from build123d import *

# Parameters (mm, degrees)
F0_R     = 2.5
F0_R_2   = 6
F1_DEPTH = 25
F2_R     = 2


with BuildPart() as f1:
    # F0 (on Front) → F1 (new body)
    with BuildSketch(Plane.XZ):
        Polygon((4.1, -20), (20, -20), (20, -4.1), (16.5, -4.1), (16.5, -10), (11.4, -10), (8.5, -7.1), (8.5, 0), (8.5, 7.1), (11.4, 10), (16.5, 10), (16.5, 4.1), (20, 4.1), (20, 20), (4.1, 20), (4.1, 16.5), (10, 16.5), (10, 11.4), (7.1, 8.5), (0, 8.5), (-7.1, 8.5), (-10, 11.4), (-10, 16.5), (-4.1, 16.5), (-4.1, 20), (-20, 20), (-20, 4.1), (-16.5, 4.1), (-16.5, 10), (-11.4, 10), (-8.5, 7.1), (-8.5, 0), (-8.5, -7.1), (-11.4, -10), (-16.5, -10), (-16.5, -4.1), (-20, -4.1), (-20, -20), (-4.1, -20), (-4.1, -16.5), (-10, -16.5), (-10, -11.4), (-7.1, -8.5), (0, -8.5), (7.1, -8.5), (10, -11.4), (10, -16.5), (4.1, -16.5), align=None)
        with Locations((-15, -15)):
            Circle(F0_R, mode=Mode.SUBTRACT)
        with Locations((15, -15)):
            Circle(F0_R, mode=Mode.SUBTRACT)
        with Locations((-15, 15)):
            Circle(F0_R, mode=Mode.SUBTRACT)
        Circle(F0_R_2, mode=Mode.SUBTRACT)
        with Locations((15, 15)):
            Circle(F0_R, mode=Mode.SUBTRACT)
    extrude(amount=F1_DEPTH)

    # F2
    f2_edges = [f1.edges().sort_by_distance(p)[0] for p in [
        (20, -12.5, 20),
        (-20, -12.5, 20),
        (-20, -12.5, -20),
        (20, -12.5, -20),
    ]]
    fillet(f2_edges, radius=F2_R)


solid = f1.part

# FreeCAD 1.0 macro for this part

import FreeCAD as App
import Part
import Sketcher
from FreeCAD import Vector
Q = App.Units.Quantity


def edges_at(feature, points):
    """Names of the edges that pass closest to the given points."""
    edges = feature.Shape.Edges
    near = lambda p: min(range(len(edges)), key=lambda i: edges[i].distToShape(Part.Vertex(*p))[0])
    return sorted({f"Edge{near(p) + 1}" for p in points})

doc = App.newDocument("Part")
body = doc.addObject("PartDesign::Body", "Body")

# Sketch on XZ plane
sketch1 = doc.addObject("Sketcher::SketchObject", "Sketch")
body.addObject(sketch1)
sketch1.AttachmentSupport = (doc.XZ_Plane, [""])
sketch1.MapMode = "FlatFace"
sketch1.addGeometry(Part.LineSegment(Vector(4.1, -20, 0), Vector(20, -20, 0)), False)
sketch1.addGeometry(Part.LineSegment(Vector(20, -20, 0), Vector(20, -4.1, 0)), False)
sketch1.addGeometry(Part.LineSegment(Vector(20, -4.1, 0), Vector(16.5, -4.1, 0)), False)
sketch1.addGeometry(Part.LineSegment(Vector(16.5, -4.1, 0), Vector(16.5, -10, 0)), False)
sketch1.addGeometry(Part.LineSegment(Vector(16.5, -10, 0), Vector(11.4, -10, 0)), False)
sketch1.addGeometry(Part.LineSegment(Vector(11.4, -10, 0), Vector(8.5, -7.1, 0)), False)
sketch1.addGeometry(Part.LineSegment(Vector(8.5, -7.1, 0), Vector(8.5, 7.1, 0)), False)
sketch1.addGeometry(Part.LineSegment(Vector(8.5, 7.1, 0), Vector(11.4, 10, 0)), False)
sketch1.addGeometry(Part.LineSegment(Vector(11.4, 10, 0), Vector(16.5, 10, 0)), False)
sketch1.addGeometry(Part.LineSegment(Vector(16.5, 10, 0), Vector(16.5, 4.1, 0)), False)
sketch1.addGeometry(Part.LineSegment(Vector(16.5, 4.1, 0), Vector(20, 4.1, 0)), False)
sketch1.addGeometry(Part.LineSegment(Vector(20, 4.1, 0), Vector(20, 20, 0)), False)
sketch1.addGeometry(Part.LineSegment(Vector(20, 20, 0), Vector(4.1, 20, 0)), False)
sketch1.addGeometry(Part.LineSegment(Vector(4.1, 20, 0), Vector(4.1, 16.5, 0)), False)
sketch1.addGeometry(Part.LineSegment(Vector(4.1, 16.5, 0), Vector(10, 16.5, 0)), False)
sketch1.addGeometry(Part.LineSegment(Vector(10, 16.5, 0), Vector(10, 11.4, 0)), False)
sketch1.addGeometry(Part.LineSegment(Vector(10, 11.4, 0), Vector(7.1, 8.5, 0)), False)
sketch1.addGeometry(Part.LineSegment(Vector(7.1, 8.5, 0), Vector(-7.1, 8.5, 0)), False)
sketch1.addGeometry(Part.LineSegment(Vector(-7.1, 8.5, 0), Vector(-10, 11.4, 0)), False)
sketch1.addGeometry(Part.LineSegment(Vector(-10, 11.4, 0), Vector(-10, 16.5, 0)), False)
sketch1.addGeometry(Part.LineSegment(Vector(-10, 16.5, 0), Vector(-4.1, 16.5, 0)), False)
sketch1.addGeometry(Part.LineSegment(Vector(-4.1, 16.5, 0), Vector(-4.1, 20, 0)), False)
sketch1.addGeometry(Part.LineSegment(Vector(-4.1, 20, 0), Vector(-20, 20, 0)), False)
sketch1.addGeometry(Part.LineSegment(Vector(-20, 20, 0), Vector(-20, 4.1, 0)), False)
sketch1.addGeometry(Part.LineSegment(Vector(-20, 4.1, 0), Vector(-16.5, 4.1, 0)), False)
sketch1.addGeometry(Part.LineSegment(Vector(-16.5, 4.1, 0), Vector(-16.5, 10, 0)), False)
sketch1.addGeometry(Part.LineSegment(Vector(-16.5, 10, 0), Vector(-11.4, 10, 0)), False)
sketch1.addGeometry(Part.LineSegment(Vector(-11.4, 10, 0), Vector(-8.5, 7.1, 0)), False)
sketch1.addGeometry(Part.LineSegment(Vector(-8.5, 7.1, 0), Vector(-8.5, -7.1, 0)), False)
sketch1.addGeometry(Part.LineSegment(Vector(-8.5, -7.1, 0), Vector(-11.4, -10, 0)), False)
sketch1.addGeometry(Part.LineSegment(Vector(-11.4, -10, 0), Vector(-16.5, -10, 0)), False)
sketch1.addGeometry(Part.LineSegment(Vector(-16.5, -10, 0), Vector(-16.5, -4.1, 0)), False)
sketch1.addGeometry(Part.LineSegment(Vector(-16.5, -4.1, 0), Vector(-20, -4.1, 0)), False)
sketch1.addGeometry(Part.LineSegment(Vector(-20, -4.1, 0), Vector(-20, -20, 0)), False)
sketch1.addGeometry(Part.LineSegment(Vector(-20, -20, 0), Vector(-4.1, -20, 0)), False)
sketch1.addGeometry(Part.LineSegment(Vector(-4.1, -20, 0), Vector(-4.1, -16.5, 0)), False)
sketch1.addGeometry(Part.LineSegment(Vector(-4.1, -16.5, 0), Vector(-10, -16.5, 0)), False)
sketch1.addGeometry(Part.LineSegment(Vector(-10, -16.5, 0), Vector(-10, -11.4, 0)), False)
sketch1.addGeometry(Part.LineSegment(Vector(-10, -11.4, 0), Vector(-7.1, -8.5, 0)), False)
sketch1.addGeometry(Part.LineSegment(Vector(-7.1, -8.5, 0), Vector(7.1, -8.5, 0)), False)
sketch1.addGeometry(Part.LineSegment(Vector(7.1, -8.5, 0), Vector(10, -11.4, 0)), False)
sketch1.addGeometry(Part.LineSegment(Vector(10, -11.4, 0), Vector(10, -16.5, 0)), False)
sketch1.addGeometry(Part.LineSegment(Vector(10, -16.5, 0), Vector(4.1, -16.5, 0)), False)
sketch1.addGeometry(Part.LineSegment(Vector(4.1, -16.5, 0), Vector(4.1, -20, 0)), False)
sketch1.addGeometry(Part.Circle(Vector(-15, -15, 0), Vector(0, 0, 1), 2.5), False)
sketch1.addGeometry(Part.Circle(Vector(15, -15, 0), Vector(0, 0, 1), 2.5), False)
sketch1.addGeometry(Part.Circle(Vector(-15, 15, 0), Vector(0, 0, 1), 2.5), False)
sketch1.addGeometry(Part.Circle(Vector(0, 0, 0), Vector(0, 0, 1), 6), False)
sketch1.addGeometry(Part.Circle(Vector(15, 15, 0), Vector(0, 0, 1), 2.5), False)
sketch1.addConstraint(Sketcher.Constraint("Coincident", 0, 2, 1, 1))
sketch1.addConstraint(Sketcher.Constraint("Coincident", 1, 2, 2, 1))
sketch1.addConstraint(Sketcher.Constraint("Coincident", 2, 2, 3, 1))
sketch1.addConstraint(Sketcher.Constraint("Coincident", 3, 2, 4, 1))
sketch1.addConstraint(Sketcher.Constraint("Coincident", 4, 2, 5, 1))
sketch1.addConstraint(Sketcher.Constraint("Coincident", 5, 2, 6, 1))
sketch1.addConstraint(Sketcher.Constraint("Coincident", 6, 2, 7, 1))
sketch1.addConstraint(Sketcher.Constraint("Coincident", 7, 2, 8, 1))
sketch1.addConstraint(Sketcher.Constraint("Coincident", 8, 2, 9, 1))
sketch1.addConstraint(Sketcher.Constraint("Coincident", 9, 2, 10, 1))
sketch1.addConstraint(Sketcher.Constraint("Coincident", 10, 2, 11, 1))
sketch1.addConstraint(Sketcher.Constraint("Coincident", 11, 2, 12, 1))
sketch1.addConstraint(Sketcher.Constraint("Coincident", 12, 2, 13, 1))
sketch1.addConstraint(Sketcher.Constraint("Coincident", 13, 2, 14, 1))
sketch1.addConstraint(Sketcher.Constraint("Coincident", 14, 2, 15, 1))
sketch1.addConstraint(Sketcher.Constraint("Coincident", 15, 2, 16, 1))
sketch1.addConstraint(Sketcher.Constraint("Coincident", 16, 2, 17, 1))
sketch1.addConstraint(Sketcher.Constraint("Coincident", 17, 2, 18, 1))
sketch1.addConstraint(Sketcher.Constraint("Coincident", 18, 2, 19, 1))
sketch1.addConstraint(Sketcher.Constraint("Coincident", 19, 2, 20, 1))
sketch1.addConstraint(Sketcher.Constraint("Coincident", 20, 2, 21, 1))
sketch1.addConstraint(Sketcher.Constraint("Coincident", 21, 2, 22, 1))
sketch1.addConstraint(Sketcher.Constraint("Coincident", 22, 2, 23, 1))
sketch1.addConstraint(Sketcher.Constraint("Coincident", 23, 2, 24, 1))
sketch1.addConstraint(Sketcher.Constraint("Coincident", 24, 2, 25, 1))
sketch1.addConstraint(Sketcher.Constraint("Coincident", 25, 2, 26, 1))
sketch1.addConstraint(Sketcher.Constraint("Coincident", 26, 2, 27, 1))
sketch1.addConstraint(Sketcher.Constraint("Coincident", 27, 2, 28, 1))
sketch1.addConstraint(Sketcher.Constraint("Coincident", 28, 2, 29, 1))
sketch1.addConstraint(Sketcher.Constraint("Coincident", 29, 2, 30, 1))
sketch1.addConstraint(Sketcher.Constraint("Coincident", 30, 2, 31, 1))
sketch1.addConstraint(Sketcher.Constraint("Coincident", 31, 2, 32, 1))
sketch1.addConstraint(Sketcher.Constraint("Coincident", 32, 2, 33, 1))
sketch1.addConstraint(Sketcher.Constraint("Coincident", 33, 2, 34, 1))
sketch1.addConstraint(Sketcher.Constraint("Coincident", 34, 2, 35, 1))
sketch1.addConstraint(Sketcher.Constraint("Coincident", 35, 2, 36, 1))
sketch1.addConstraint(Sketcher.Constraint("Coincident", 36, 2, 37, 1))
sketch1.addConstraint(Sketcher.Constraint("Coincident", 37, 2, 38, 1))
sketch1.addConstraint(Sketcher.Constraint("Coincident", 38, 2, 39, 1))
sketch1.addConstraint(Sketcher.Constraint("Coincident", 39, 2, 40, 1))
sketch1.addConstraint(Sketcher.Constraint("Coincident", 40, 2, 41, 1))
sketch1.addConstraint(Sketcher.Constraint("Coincident", 41, 2, 42, 1))
sketch1.addConstraint(Sketcher.Constraint("Coincident", 42, 2, 43, 1))
sketch1.addConstraint(Sketcher.Constraint("Coincident", 43, 2, 0, 1))
sketch1.addConstraint(Sketcher.Constraint("Horizontal", 0))
sketch1.addConstraint(Sketcher.Constraint("Vertical", 1))
sketch1.addConstraint(Sketcher.Constraint("Horizontal", 2))
sketch1.addConstraint(Sketcher.Constraint("Vertical", 3))
sketch1.addConstraint(Sketcher.Constraint("Horizontal", 4))
sketch1.addConstraint(Sketcher.Constraint("Vertical", 6))
sketch1.addConstraint(Sketcher.Constraint("Horizontal", 8))
sketch1.addConstraint(Sketcher.Constraint("Vertical", 9))
sketch1.addConstraint(Sketcher.Constraint("Horizontal", 10))
sketch1.addConstraint(Sketcher.Constraint("Vertical", 11))
sketch1.addConstraint(Sketcher.Constraint("Horizontal", 12))
sketch1.addConstraint(Sketcher.Constraint("Vertical", 13))
sketch1.addConstraint(Sketcher.Constraint("Horizontal", 14))
sketch1.addConstraint(Sketcher.Constraint("Vertical", 15))
sketch1.addConstraint(Sketcher.Constraint("Horizontal", 17))
sketch1.addConstraint(Sketcher.Constraint("Vertical", 19))
sketch1.addConstraint(Sketcher.Constraint("Horizontal", 20))
sketch1.addConstraint(Sketcher.Constraint("Vertical", 21))
sketch1.addConstraint(Sketcher.Constraint("Horizontal", 22))
sketch1.addConstraint(Sketcher.Constraint("Vertical", 23))
sketch1.addConstraint(Sketcher.Constraint("Horizontal", 24))
sketch1.addConstraint(Sketcher.Constraint("Vertical", 25))
sketch1.addConstraint(Sketcher.Constraint("Horizontal", 26))
sketch1.addConstraint(Sketcher.Constraint("Vertical", 28))
sketch1.addConstraint(Sketcher.Constraint("Horizontal", 30))
sketch1.addConstraint(Sketcher.Constraint("Vertical", 31))
sketch1.addConstraint(Sketcher.Constraint("Horizontal", 32))
sketch1.addConstraint(Sketcher.Constraint("Vertical", 33))
sketch1.addConstraint(Sketcher.Constraint("Horizontal", 34))
sketch1.addConstraint(Sketcher.Constraint("Vertical", 35))
sketch1.addConstraint(Sketcher.Constraint("Horizontal", 36))
sketch1.addConstraint(Sketcher.Constraint("Vertical", 37))
sketch1.addConstraint(Sketcher.Constraint("Horizontal", 39))
sketch1.addConstraint(Sketcher.Constraint("Vertical", 41))
sketch1.addConstraint(Sketcher.Constraint("Horizontal", 42))
sketch1.addConstraint(Sketcher.Constraint("Vertical", 43))
sketch1.addConstraint(Sketcher.Constraint("Coincident", 47, 3, -1, 1))
sketch1.addConstraint(Sketcher.Constraint("Equal", 44, 45))
sketch1.addConstraint(Sketcher.Constraint("Equal", 45, 46))
sketch1.addConstraint(Sketcher.Constraint("Equal", 46, 48))
sketch1.addConstraint(Sketcher.Constraint("Symmetric", 45, 3, 46, 3, -1, 1))
sketch1.addConstraint(Sketcher.Constraint("Symmetric", 44, 3, 48, 3, -1, 1))
sketch1.addConstraint(Sketcher.Constraint("Symmetric", 0, 2, 22, 2, -1, 1))
sketch1.addConstraint(Sketcher.Constraint("Symmetric", 2, 2, 24, 2, -1, 1))
sketch1.addConstraint(Sketcher.Constraint("Symmetric", 4, 2, 26, 2, -1, 1))
sketch1.addConstraint(Sketcher.Constraint("Symmetric", 5, 2, 27, 2, -1, 1))
sketch1.addConstraint(Sketcher.Constraint("Symmetric", 7, 2, 29, 2, -1, 1))
sketch1.addConstraint(Sketcher.Constraint("Symmetric", 9, 2, 31, 2, -1, 1))
sketch1.addConstraint(Sketcher.Constraint("Symmetric", 11, 2, 33, 2, -1, 1))
sketch1.addConstraint(Sketcher.Constraint("Symmetric", 13, 2, 35, 2, -1, 1))
sketch1.addConstraint(Sketcher.Constraint("Symmetric", 15, 2, 37, 2, -1, 1))
sketch1.addConstraint(Sketcher.Constraint("Symmetric", 16, 2, 38, 2, -1, 1))
sketch1.addConstraint(Sketcher.Constraint("Symmetric", 18, 2, 40, 2, -1, 1))
sketch1.addConstraint(Sketcher.Constraint("Symmetric", 20, 2, 42, 2, -1, 1))
sketch1.addConstraint(Sketcher.Constraint("Symmetric", 44, 3, 45, 3, -2))
sketch1.addConstraint(Sketcher.Constraint("Symmetric", 15, 2, 18, 2, -2))
sketch1.addConstraint(Sketcher.Constraint("Symmetric", 13, 2, 20, 2, -2))
sketch1.addConstraint(Sketcher.Constraint("Symmetric", 11, 2, 22, 2, -2))
sketch1.addConstraint(Sketcher.Constraint("Symmetric", 9, 2, 24, 2, -2))
sketch1.addConstraint(Sketcher.Constraint("Symmetric", 7, 2, 26, 2, -2))
sketch1.addConstraint(Sketcher.Constraint("Perpendicular", 5, 7))
sketch1.addConstraint(Sketcher.Constraint("Parallel", 7, 16))
sketch1.addConstraint(Sketcher.Constraint("Perpendicular", 16, 18))
sketch1.addConstraint(Sketcher.Constraint("Perpendicular", 27, 29))
sketch1.addConstraint(Sketcher.Constraint("Perpendicular", 38, 40))
sketch1.addConstraint(Sketcher.Constraint("Horizontal", 6, 2, 27, 2))
sketch1.addConstraint(Sketcher.Constraint("Equal", 34, 1))
sketch1.addConstraint(Sketcher.Constraint("Equal", 42, 3))
sketch1.addConstraint(Sketcher.Constraint("Equal", 39, 6))
sketch1.addConstraint(Sketcher.Constraint("Equal", 32, 13))
sketch1.addConstraint(Sketcher.Constraint("Equal", 30, 15))
sketch1.addConstraint(Sketcher.Constraint("Equal", 7, 16))
sketch1.addConstraint(Sketcher.Constraint("Diameter", 44, Q("5 mm")))
sketch1.addConstraint(Sketcher.Constraint("Diameter", 47, Q("12 mm")))
sketch1.addConstraint(Sketcher.Constraint("DistanceX", 0, 1, 0, 2, Q("15.9 mm")))
sketch1.addConstraint(Sketcher.Constraint("DistanceX", 2, 2, 2, 1, Q("3.5 mm")))
sketch1.addConstraint(Sketcher.Constraint("DistanceX", 4, 2, 4, 1, Q("5.1 mm")))
sketch1.addConstraint(Sketcher.Constraint("DistanceX", 14, 1, 14, 2, Q("5.9 mm")))
sketch1.addConstraint(Sketcher.Constraint("DistanceX", 17, 2, 17, 1, Q("14.2 mm")))
sketch1.addConstraint(Sketcher.Constraint("DistanceX", 44, 3, -1, 1, Q("15 mm")))
sketch1.addConstraint(Sketcher.Constraint("DistanceY", 44, 3, -1, 1, Q("15 mm")))
sketch1.addConstraint(Sketcher.Constraint("DistanceX", -1, 1, 0, 2, Q("20 mm")))
pad1 = doc.addObject("PartDesign::Pad", "Pad")
body.addObject(pad1)
pad1.Profile = sketch1
pad1.Length = 25
doc.recompute()

fillet = doc.addObject("PartDesign::Fillet", "Fillet")
body.addObject(fillet)
fillet.Base = (pad1, edges_at(pad1, [
    (20, -12.5, 20),
    (-20, -12.5, 20),
    (-20, -12.5, -20),
    (20, -12.5, -20),
]))
fillet.Radius = 2

doc.recompute()
